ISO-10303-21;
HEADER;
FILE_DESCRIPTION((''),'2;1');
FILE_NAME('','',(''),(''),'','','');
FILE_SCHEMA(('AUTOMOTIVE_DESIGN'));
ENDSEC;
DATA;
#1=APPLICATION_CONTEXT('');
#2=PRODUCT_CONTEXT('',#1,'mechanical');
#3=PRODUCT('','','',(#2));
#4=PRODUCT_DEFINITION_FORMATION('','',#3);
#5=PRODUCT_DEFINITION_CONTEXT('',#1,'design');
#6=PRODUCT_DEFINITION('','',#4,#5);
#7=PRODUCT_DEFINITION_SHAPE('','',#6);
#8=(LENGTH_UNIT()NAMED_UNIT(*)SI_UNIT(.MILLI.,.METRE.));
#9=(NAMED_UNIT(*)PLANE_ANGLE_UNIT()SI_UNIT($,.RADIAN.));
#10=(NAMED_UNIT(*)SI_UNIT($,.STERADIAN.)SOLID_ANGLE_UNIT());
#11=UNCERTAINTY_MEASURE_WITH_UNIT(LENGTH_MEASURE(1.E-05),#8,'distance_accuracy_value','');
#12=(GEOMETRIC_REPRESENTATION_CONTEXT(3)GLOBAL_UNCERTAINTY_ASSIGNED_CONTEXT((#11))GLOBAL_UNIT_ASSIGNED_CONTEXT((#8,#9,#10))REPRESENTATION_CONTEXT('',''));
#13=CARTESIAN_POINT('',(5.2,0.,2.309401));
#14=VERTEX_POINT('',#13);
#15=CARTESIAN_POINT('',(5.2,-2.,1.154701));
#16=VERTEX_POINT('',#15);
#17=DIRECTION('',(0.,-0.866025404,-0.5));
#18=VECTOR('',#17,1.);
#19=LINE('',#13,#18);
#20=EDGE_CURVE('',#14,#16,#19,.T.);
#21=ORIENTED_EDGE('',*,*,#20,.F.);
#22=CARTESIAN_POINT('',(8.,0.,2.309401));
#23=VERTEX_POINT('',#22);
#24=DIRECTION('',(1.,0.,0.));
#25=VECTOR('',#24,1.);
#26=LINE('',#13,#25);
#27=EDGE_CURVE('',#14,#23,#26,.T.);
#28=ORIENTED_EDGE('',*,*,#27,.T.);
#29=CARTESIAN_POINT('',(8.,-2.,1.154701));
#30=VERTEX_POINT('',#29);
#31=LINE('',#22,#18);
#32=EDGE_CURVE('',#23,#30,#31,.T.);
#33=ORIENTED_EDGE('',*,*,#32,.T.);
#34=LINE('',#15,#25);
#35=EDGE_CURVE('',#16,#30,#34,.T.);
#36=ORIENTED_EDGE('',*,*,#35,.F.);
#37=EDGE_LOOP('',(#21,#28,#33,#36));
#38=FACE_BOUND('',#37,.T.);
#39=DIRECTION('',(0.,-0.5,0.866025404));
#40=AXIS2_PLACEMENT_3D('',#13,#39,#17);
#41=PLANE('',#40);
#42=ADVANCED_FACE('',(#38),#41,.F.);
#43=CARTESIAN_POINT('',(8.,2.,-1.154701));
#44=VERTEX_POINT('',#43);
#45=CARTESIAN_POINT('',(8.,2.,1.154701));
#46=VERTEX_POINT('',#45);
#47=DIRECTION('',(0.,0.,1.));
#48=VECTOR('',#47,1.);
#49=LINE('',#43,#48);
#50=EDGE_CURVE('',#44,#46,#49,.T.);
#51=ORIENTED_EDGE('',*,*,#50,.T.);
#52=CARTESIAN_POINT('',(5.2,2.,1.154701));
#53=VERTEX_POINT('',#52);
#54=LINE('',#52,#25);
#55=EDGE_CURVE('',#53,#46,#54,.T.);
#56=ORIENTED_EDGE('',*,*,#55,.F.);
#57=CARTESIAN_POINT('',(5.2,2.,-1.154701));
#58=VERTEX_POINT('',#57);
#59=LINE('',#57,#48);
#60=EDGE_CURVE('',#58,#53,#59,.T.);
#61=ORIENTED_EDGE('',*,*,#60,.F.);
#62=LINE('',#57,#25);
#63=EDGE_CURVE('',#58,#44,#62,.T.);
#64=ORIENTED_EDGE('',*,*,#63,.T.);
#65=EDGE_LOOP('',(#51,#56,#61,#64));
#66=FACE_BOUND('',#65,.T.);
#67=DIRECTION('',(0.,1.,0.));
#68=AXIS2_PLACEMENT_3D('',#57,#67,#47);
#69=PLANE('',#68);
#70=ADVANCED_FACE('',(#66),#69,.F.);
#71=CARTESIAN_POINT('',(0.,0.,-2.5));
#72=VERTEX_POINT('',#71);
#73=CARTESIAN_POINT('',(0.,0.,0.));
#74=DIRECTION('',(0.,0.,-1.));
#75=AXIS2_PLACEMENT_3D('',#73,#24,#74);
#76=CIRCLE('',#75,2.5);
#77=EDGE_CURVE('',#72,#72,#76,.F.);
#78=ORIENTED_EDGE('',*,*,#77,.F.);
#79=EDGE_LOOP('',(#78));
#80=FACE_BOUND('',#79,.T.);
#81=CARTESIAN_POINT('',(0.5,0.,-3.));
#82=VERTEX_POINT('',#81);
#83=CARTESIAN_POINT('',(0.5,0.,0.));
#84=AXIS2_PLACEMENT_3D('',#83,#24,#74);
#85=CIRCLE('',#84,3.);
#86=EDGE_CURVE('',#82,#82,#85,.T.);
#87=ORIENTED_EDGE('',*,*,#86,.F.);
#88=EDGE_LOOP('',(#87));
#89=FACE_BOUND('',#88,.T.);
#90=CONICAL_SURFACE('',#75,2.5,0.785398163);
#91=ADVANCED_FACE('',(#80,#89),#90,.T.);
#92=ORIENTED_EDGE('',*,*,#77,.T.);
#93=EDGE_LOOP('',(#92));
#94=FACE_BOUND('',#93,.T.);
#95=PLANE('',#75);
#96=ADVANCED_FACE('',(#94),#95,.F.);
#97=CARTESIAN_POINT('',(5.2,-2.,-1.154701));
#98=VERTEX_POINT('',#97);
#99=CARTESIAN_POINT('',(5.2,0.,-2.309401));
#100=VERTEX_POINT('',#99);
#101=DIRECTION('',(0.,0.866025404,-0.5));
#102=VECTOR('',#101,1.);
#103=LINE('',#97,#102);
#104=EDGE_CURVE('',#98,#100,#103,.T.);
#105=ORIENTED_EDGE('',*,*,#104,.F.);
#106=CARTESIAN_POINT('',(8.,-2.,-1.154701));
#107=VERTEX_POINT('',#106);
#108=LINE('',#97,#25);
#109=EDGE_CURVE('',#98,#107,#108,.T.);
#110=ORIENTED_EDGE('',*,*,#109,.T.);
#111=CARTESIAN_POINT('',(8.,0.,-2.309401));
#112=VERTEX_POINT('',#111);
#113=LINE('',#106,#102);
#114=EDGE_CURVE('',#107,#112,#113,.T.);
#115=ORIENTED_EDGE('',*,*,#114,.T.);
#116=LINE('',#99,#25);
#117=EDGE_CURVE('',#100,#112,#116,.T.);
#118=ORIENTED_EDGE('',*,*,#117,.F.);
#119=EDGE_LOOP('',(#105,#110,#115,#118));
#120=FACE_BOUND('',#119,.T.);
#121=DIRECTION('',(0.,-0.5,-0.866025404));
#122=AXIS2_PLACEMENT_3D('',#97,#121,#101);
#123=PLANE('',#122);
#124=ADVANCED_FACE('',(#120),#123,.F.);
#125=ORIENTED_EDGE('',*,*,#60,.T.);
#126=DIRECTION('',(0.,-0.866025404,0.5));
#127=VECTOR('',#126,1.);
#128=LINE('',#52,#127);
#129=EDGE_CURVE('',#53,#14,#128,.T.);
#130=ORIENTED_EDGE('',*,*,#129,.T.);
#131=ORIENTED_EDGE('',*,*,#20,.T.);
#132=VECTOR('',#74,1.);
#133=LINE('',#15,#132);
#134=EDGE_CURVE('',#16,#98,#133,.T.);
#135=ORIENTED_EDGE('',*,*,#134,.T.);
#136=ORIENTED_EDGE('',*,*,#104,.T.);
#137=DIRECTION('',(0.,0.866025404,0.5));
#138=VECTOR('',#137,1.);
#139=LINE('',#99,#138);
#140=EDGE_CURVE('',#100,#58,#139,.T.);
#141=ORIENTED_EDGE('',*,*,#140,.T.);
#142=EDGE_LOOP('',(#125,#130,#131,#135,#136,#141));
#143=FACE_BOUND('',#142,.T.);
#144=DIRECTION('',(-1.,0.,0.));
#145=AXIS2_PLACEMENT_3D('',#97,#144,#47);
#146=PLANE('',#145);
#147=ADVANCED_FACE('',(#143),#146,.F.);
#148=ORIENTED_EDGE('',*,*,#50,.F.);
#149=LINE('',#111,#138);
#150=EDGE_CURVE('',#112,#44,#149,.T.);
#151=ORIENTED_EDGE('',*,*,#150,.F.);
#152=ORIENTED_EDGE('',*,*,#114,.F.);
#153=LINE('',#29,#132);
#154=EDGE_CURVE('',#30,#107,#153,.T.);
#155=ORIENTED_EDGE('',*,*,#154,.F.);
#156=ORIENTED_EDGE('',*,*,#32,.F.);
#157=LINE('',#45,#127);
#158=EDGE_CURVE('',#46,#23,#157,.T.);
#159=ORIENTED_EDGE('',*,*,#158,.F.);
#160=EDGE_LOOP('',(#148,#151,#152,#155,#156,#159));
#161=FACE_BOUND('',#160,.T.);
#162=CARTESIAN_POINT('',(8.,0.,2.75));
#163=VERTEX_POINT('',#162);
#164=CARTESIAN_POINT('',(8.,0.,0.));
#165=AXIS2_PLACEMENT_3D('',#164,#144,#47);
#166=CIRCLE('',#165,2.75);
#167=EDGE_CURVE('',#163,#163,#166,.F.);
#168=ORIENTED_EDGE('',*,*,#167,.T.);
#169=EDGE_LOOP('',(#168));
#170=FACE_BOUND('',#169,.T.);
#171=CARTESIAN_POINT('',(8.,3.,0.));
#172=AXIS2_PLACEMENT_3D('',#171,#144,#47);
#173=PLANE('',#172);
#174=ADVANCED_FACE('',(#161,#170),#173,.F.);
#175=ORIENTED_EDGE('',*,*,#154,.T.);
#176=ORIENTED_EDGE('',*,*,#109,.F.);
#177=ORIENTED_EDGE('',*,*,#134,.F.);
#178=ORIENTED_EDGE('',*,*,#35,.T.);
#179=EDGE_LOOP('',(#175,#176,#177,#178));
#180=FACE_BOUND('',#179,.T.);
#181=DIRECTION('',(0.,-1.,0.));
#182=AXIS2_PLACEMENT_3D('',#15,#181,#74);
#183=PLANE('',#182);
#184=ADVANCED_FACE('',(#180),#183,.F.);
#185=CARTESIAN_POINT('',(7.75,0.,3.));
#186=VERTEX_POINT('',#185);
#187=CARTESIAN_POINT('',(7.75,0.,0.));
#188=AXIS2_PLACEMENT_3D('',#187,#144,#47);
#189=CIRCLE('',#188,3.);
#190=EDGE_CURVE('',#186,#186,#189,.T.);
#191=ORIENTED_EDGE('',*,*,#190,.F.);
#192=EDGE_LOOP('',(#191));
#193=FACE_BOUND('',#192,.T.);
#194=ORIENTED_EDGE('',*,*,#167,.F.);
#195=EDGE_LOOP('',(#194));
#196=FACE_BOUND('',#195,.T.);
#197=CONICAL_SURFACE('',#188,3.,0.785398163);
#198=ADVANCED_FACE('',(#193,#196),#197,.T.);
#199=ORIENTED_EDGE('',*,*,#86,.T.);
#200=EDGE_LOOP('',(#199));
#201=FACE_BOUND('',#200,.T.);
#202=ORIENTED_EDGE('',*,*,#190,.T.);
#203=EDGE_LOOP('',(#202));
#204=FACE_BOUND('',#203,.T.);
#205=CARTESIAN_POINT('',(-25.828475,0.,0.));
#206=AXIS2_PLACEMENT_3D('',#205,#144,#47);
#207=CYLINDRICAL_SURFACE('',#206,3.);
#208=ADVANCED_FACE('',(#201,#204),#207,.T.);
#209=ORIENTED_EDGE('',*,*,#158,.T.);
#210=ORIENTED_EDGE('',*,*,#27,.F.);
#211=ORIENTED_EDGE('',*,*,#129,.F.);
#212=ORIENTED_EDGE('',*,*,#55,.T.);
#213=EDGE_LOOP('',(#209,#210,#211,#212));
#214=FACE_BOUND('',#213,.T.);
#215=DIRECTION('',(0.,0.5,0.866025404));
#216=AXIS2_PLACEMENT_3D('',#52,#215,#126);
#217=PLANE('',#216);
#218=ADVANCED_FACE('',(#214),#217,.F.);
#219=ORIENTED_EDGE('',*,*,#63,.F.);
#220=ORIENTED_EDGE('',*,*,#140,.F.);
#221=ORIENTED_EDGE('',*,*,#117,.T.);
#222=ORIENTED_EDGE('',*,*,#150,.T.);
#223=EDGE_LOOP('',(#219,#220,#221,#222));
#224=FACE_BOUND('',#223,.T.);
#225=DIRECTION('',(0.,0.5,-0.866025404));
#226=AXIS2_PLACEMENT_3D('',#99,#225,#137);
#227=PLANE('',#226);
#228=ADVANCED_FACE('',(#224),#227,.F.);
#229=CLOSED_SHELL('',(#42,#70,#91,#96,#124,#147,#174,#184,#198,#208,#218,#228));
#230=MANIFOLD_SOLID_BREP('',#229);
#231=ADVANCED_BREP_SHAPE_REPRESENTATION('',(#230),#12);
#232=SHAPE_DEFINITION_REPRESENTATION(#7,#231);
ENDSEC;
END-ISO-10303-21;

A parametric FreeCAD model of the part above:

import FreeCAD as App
import Part
import Sketcher
Q = App.Units.Quantity


def edges_at(feature, points):
    """Names of the edges that pass closest to the given points."""
    edges = feature.Shape.Edges
    near = lambda p: min(range(len(edges)), key=lambda i: edges[i].distToShape(Part.Vertex(*p))[0])
    return sorted({f"Edge{near(p) + 1}" for p in points})

doc = App.newDocument("Part")
params = doc.addObject("Spreadsheet::Sheet", "Params")
for row, (alias, value) in enumerate([
    ("sketch1_width", "8 mm"),
    ("sketch1_height", "3 mm"),
    ("revolution_angle", "360 deg"),
    ("chamfer_size", "0.5 mm"),
    ("pocket1_length", "2.8 mm"),
    ("chamfer2_size", "0.25 mm"),
], start=1):
    params.set(f"A{row}", alias)
    params.set(f"B{row}", "=" + value)
    params.setAlias(f"B{row}", alias)

body = doc.addObject("PartDesign::Body", "Body")

sketch1 = body.newObject("Sketcher::SketchObject", "Sketch")
sketch1.AttachmentSupport = (doc.getObject("XY_Plane"), [""])
sketch1.MapMode = "FlatFace"
sketch1.addGeometry([
    Part.LineSegment(App.Vector(0, 3, 0), App.Vector(0, 0, 0)),
    Part.LineSegment(App.Vector(0, 0, 0), App.Vector(8, 0, 0)),
    Part.LineSegment(App.Vector(8, 0, 0), App.Vector(8, 3, 0)),
    Part.LineSegment(App.Vector(8, 3, 0), App.Vector(0, 3, 0)),
], False)
sketch1.addConstraint([
    Sketcher.Constraint("Coincident", 0, 2, 1, 1),
    Sketcher.Constraint("Coincident", 1, 2, 2, 1),
    Sketcher.Constraint("Coincident", 2, 2, 3, 1),
    Sketcher.Constraint("Coincident", 3, 2, 0, 1),
    Sketcher.Constraint("Vertical", 0),
    Sketcher.Constraint("Horizontal", 1),
    Sketcher.Constraint("Vertical", 2),
    Sketcher.Constraint("Horizontal", 3),
    Sketcher.Constraint("Coincident", 0, 2, -1, 1),
    Sketcher.Constraint("DistanceX", 1, 1, 1, 2, 8.0),
    Sketcher.Constraint("DistanceY", 0, 2, 0, 1, 3.0),
])
sketch1.setExpression("Constraints[9]", "Params.sketch1_width")
sketch1.setExpression("Constraints[10]", "Params.sketch1_height")
revolution = body.newObject("PartDesign::Revolution", "Revolution")
revolution.Profile = sketch1
revolution.ReferenceAxis = (sketch1, ["H_Axis"])
revolution.setExpression("Angle", "Params.revolution_angle")
doc.recompute()

chamfer = body.newObject("PartDesign::Chamfer", "Chamfer")
chamfer.Base = (revolution, edges_at(revolution, [(0, 0, -3)]))
chamfer.setExpression("Size", "Params.chamfer_size")

sketch2 = body.newObject("Sketcher::SketchObject", "Sketch001")
sketch2.AttachmentSupport = (doc.getObject("YZ_Plane"), [""])
sketch2.MapMode = "FlatFace"
sketch2.AttachmentOffset = App.Placement(App.Vector(0, 0, 8), App.Rotation())
sketch2.addGeometry([
    Part.LineSegment(App.Vector(0, -2.3, 0), App.Vector(2, -1.2, 0)),
    Part.LineSegment(App.Vector(2, -1.2, 0), App.Vector(2, 1.2, 0)),
    Part.LineSegment(App.Vector(2, 1.2, 0), App.Vector(0, 2.3, 0)),
    Part.LineSegment(App.Vector(0, 2.3, 0), App.Vector(-2, 1.2, 0)),
    Part.LineSegment(App.Vector(-2, 1.2, 0), App.Vector(-2, -1.2, 0)),
    Part.LineSegment(App.Vector(-2, -1.2, 0), App.Vector(0, -2.3, 0)),
], False)
sketch2.addConstraint([
    Sketcher.Constraint("Coincident", 0, 2, 1, 1),
    Sketcher.Constraint("Coincident", 1, 2, 2, 1),
    Sketcher.Constraint("Coincident", 2, 2, 3, 1),
    Sketcher.Constraint("Coincident", 3, 2, 4, 1),
    Sketcher.Constraint("Coincident", 4, 2, 5, 1),
    Sketcher.Constraint("Coincident", 5, 2, 0, 1),
    Sketcher.Constraint("Vertical", 1),
    Sketcher.Constraint("Vertical", 4),
    Sketcher.Constraint("Symmetric", 0, 2, 3, 2, -1, 1),
    Sketcher.Constraint("Symmetric", 2, 2, 5, 2, -1, 1),
    Sketcher.Constraint("PointOnObject", 2, 2, -2),
    Sketcher.Constraint("Parallel", 2, 5),
    Sketcher.Constraint("Horizontal", 1, 2, 3, 2),
    Sketcher.Constraint("Angle", 0, Q("30 deg")),
    Sketcher.Constraint("DistanceX", -1, 1, 0, 2, 2.0),
    Sketcher.Constraint("DistanceY", 1, 1, 1, 2, 2.309401),
])
pocket1 = body.newObject("PartDesign::Pocket", "Pocket")
pocket1.Profile = sketch2
pocket1.setExpression("Length", "Params.pocket1_length")
doc.recompute()

chamfer2 = body.newObject("PartDesign::Chamfer", "Chamfer001")
chamfer2.Base = (pocket1, edges_at(pocket1, [(8, 0, -3)]))
chamfer2.setExpression("Size", "Params.chamfer2_size")

doc.recompute()
